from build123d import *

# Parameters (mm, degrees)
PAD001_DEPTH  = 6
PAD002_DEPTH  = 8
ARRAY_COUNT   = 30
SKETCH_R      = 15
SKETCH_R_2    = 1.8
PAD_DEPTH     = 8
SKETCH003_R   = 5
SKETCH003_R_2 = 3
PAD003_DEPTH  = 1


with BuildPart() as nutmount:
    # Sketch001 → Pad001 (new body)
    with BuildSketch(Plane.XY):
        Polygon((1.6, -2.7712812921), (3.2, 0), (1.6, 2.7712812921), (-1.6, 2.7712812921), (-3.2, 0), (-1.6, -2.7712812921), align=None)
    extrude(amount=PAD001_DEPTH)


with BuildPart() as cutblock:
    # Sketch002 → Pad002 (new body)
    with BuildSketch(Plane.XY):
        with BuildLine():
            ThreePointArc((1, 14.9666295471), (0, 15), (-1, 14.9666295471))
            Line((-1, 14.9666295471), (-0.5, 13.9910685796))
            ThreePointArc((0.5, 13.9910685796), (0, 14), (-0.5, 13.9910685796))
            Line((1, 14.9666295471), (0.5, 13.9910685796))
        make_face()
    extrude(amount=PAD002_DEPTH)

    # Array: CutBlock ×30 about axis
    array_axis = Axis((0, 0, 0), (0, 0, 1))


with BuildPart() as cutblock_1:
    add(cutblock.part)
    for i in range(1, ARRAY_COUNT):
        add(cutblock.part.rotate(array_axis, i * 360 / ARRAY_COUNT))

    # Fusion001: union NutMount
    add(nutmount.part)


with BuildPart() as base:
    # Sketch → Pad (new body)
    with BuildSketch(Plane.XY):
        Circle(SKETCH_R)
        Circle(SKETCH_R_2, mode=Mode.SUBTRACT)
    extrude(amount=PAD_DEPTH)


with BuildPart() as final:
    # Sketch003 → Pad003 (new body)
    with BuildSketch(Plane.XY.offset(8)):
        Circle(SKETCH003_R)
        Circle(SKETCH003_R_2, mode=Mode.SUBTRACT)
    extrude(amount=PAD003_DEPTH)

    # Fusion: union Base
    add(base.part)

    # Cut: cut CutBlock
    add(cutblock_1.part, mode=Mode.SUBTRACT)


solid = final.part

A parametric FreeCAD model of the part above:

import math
import FreeCAD as App
import Part
import Sketcher

V = App.Vector
Q = App.Units.Quantity


def add_polygon(sketch, points):
    """Adds a closed chain of lines whose ends are joined by coincident constraints."""
    first, n = sketch.GeometryCount, len(points)
    for a, b in zip(points, points[1:] + points[:1]):
        sketch.addGeometry(Part.LineSegment(App.Vector(*a, 0), App.Vector(*b, 0)), False)
    for i in range(n):
        sketch.addConstraint(Sketcher.Constraint("Coincident", first + i, 2, first + (i + 1) % n, 1))

doc = App.newDocument("Part")
body = doc.addObject("PartDesign::Body", "Body")

# Sketch on XY plane
sketch1 = doc.addObject("Sketcher::SketchObject", "Sketch")
body.addObject(sketch1)
sketch1.AttachmentSupport = (doc.XY_Plane, [""])
sketch1.MapMode = "FlatFace"
add_polygon(sketch1, [(1.6, -2.8), (3.2, 0), (1.6, 2.8), (-1.6, 2.8), (-3.2, 0), (-1.6, -2.8)])  # lines 0-5
sketch1.addConstraint([
    Sketcher.Constraint("Horizontal", 2),
    Sketcher.Constraint("Horizontal", 5),
    Sketcher.Constraint("Symmetric", 0, 2, 3, 2, -1, 1),
    Sketcher.Constraint("Symmetric", 1, 2, 4, 2, -1, 1),
    Sketcher.Constraint("PointOnObject", 0, 2, -1),
    Sketcher.Constraint("Parallel", 0, 3),
    Sketcher.Constraint("Vertical", 2, 2, 4, 2),
    Sketcher.Constraint("Angle", 0, Q("60 deg")),
    Sketcher.Constraint("DistanceX", 2, 2, 2, 1, 3.2),
    Sketcher.Constraint("Distance", 0, 3.2),
])
pad1 = doc.addObject("PartDesign::Pad", "Pad")
body.addObject(pad1)
pad1.Profile = sketch1
pad1.Length = 6
body2 = doc.addObject("PartDesign::Body", "Body001")

# Sketch on XY plane
sketch2 = doc.addObject("Sketcher::SketchObject", "Sketch001")
body2.addObject(sketch2)
sketch2.AttachmentSupport = (doc.getObject("XY_Plane001"), [""])
sketch2.MapMode = "FlatFace"
sketch2.addGeometry([
    Part.ArcOfCircle(Part.Circle(V(0, 0, 0), V(0, 0, 1), 15), math.radians(86.18), math.radians(93.82)),
    Part.LineSegment(V(-1, 15, 0), V(-0.5, 14, 0)),
    Part.ArcOfCircle(Part.Circle(V(0, 0, 0), V(0, 0, 1), 14), math.radians(87.95), math.radians(92.05)),
    Part.LineSegment(V(0.5, 14, 0), V(1, 15, 0)),
], False)
sketch2.addConstraint([
    Sketcher.Constraint("Coincident", 0, 2, 1, 1),
    Sketcher.Constraint("Coincident", 1, 2, 2, 2),
    Sketcher.Constraint("Coincident", 2, 1, 3, 1),
    Sketcher.Constraint("Coincident", 3, 2, 0, 1),
    Sketcher.Constraint("Coincident", 0, 3, -1, 1),
    Sketcher.Constraint("Coincident", 2, 3, -1, 1),
    Sketcher.Constraint("Horizontal", 1, 2, 2, 1),
    Sketcher.Constraint("Horizontal", 0, 2, 3, 2),
    Sketcher.Constraint("Radius", 0, 15.0),
    Sketcher.Constraint("Radius", 2, 14.0),
    Sketcher.Constraint("DistanceX", 0, 2, -1, 1, 1.0),
    Sketcher.Constraint("DistanceX", 1, 2, 2, 1, 1.0),
])
pad2 = doc.addObject("PartDesign::Pad", "Pad001")
body2.addObject(pad2)
pad2.Profile = sketch2
pad2.Length = 8
body3 = doc.addObject("PartDesign::Body", "Body002")
body3.AllowCompound = True
doc.recompute()

body3.BaseFeature = body2
doc.recompute()

body4 = doc.addObject("PartDesign::Body", "Body003")
body4.BaseFeature = body2
body4.Placement = App.Placement(V(0, 0, 0), App.Rotation(V(0, 0, 1), 12))
boolean = doc.addObject("PartDesign::Boolean", "Boolean")
body3.addObject(boolean)
boolean.Type = "Fuse"
boolean.addObjects([body4])
doc.recompute()

body5 = doc.addObject("PartDesign::Body", "Body004")
body5.BaseFeature = body2
body5.Placement = App.Placement(V(0, 0, 0), App.Rotation(V(0, 0, 1), 24))
boolean2 = doc.addObject("PartDesign::Boolean", "Boolean001")
body3.addObject(boolean2)
boolean2.Type = "Fuse"
boolean2.addObjects([body5])
doc.recompute()

body6 = doc.addObject("PartDesign::Body", "Body005")
body6.BaseFeature = body2
body6.Placement = App.Placement(V(0, 0, 0), App.Rotation(V(0, 0, 1), 36))
boolean3 = doc.addObject("PartDesign::Boolean", "Boolean002")
body3.addObject(boolean3)
boolean3.Type = "Fuse"
boolean3.addObjects([body6])
doc.recompute()

body7 = doc.addObject("PartDesign::Body", "Body006")
body7.BaseFeature = body2
body7.Placement = App.Placement(V(0, 0, 0), App.Rotation(V(0, 0, 1), 48))
boolean4 = doc.addObject("PartDesign::Boolean", "Boolean003")
body3.addObject(boolean4)
boolean4.Type = "Fuse"
boolean4.addObjects([body7])
doc.recompute()

body8 = doc.addObject("PartDesign::Body", "Body007")
body8.BaseFeature = body2
body8.Placement = App.Placement(V(0, 0, 0), App.Rotation(V(0, 0, 1), 60))
boolean5 = doc.addObject("PartDesign::Boolean", "Boolean004")
body3.addObject(boolean5)
boolean5.Type = "Fuse"
boolean5.addObjects([body8])
doc.recompute()

body9 = doc.addObject("PartDesign::Body", "Body008")
body9.BaseFeature = body2
body9.Placement = App.Placement(V(0, 0, 0), App.Rotation(V(0, 0, 1), 72))
boolean6 = doc.addObject("PartDesign::Boolean", "Boolean005")
body3.addObject(boolean6)
boolean6.Type = "Fuse"
boolean6.addObjects([body9])
doc.recompute()

body10 = doc.addObject("PartDesign::Body", "Body009")
body10.BaseFeature = body2
body10.Placement = App.Placement(V(0, 0, 0), App.Rotation(V(0, 0, 1), 84))
boolean7 = doc.addObject("PartDesign::Boolean", "Boolean006")
body3.addObject(boolean7)
boolean7.Type = "Fuse"
boolean7.addObjects([body10])
doc.recompute()

body11 = doc.addObject("PartDesign::Body", "Body010")
body11.BaseFeature = body2
body11.Placement = App.Placement(V(0, 0, 0), App.Rotation(V(0, 0, 1), 96))
boolean8 = doc.addObject("PartDesign::Boolean", "Boolean007")
body3.addObject(boolean8)
boolean8.Type = "Fuse"
boolean8.addObjects([body11])
doc.recompute()

body12 = doc.addObject("PartDesign::Body", "Body011")
body12.BaseFeature = body2
body12.Placement = App.Placement(V(0, 0, 0), App.Rotation(V(0, 0, 1), 108))
boolean9 = doc.addObject("PartDesign::Boolean", "Boolean008")
body3.addObject(boolean9)
boolean9.Type = "Fuse"
boolean9.addObjects([body12])
doc.recompute()

body13 = doc.addObject("PartDesign::Body", "Body012")
body13.BaseFeature = body2
body13.Placement = App.Placement(V(0, 0, 0), App.Rotation(V(0, 0, 1), 120))
boolean10 = doc.addObject("PartDesign::Boolean", "Boolean009")
body3.addObject(boolean10)
boolean10.Type = "Fuse"
boolean10.addObjects([body13])
doc.recompute()

body14 = doc.addObject("PartDesign::Body", "Body013")
body14.BaseFeature = body2
body14.Placement = App.Placement(V(0, 0, 0), App.Rotation(V(0, 0, 1), 132))
boolean11 = doc.addObject("PartDesign::Boolean", "Boolean010")
body3.addObject(boolean11)
boolean11.Type = "Fuse"
boolean11.addObjects([body14])
doc.recompute()

body15 = doc.addObject("PartDesign::Body", "Body014")
body15.BaseFeature = body2
body15.Placement = App.Placement(V(0, 0, 0), App.Rotation(V(0, 0, 1), 144))
boolean12 = doc.addObject("PartDesign::Boolean", "Boolean011")
body3.addObject(boolean12)
boolean12.Type = "Fuse"
boolean12.addObjects([body15])
doc.recompute()

body16 = doc.addObject("PartDesign::Body", "Body015")
body16.BaseFeature = body2
body16.Placement = App.Placement(V(0, 0, 0), App.Rotation(V(0, 0, 1), 156))
boolean13 = doc.addObject("PartDesign::Boolean", "Boolean012")
body3.addObject(boolean13)
boolean13.Type = "Fuse"
boolean13.addObjects([body16])
doc.recompute()

body17 = doc.addObject("PartDesign::Body", "Body016")
body17.BaseFeature = body2
body17.Placement = App.Placement(V(0, 0, 0), App.Rotation(V(0, 0, 1), 168))
boolean14 = doc.addObject("PartDesign::Boolean", "Boolean013")
body3.addObject(boolean14)
boolean14.Type = "Fuse"
boolean14.addObjects([body17])
doc.recompute()

body18 = doc.addObject("PartDesign::Body", "Body017")
body18.BaseFeature = body2
body18.Placement = App.Placement(V(0, 0, 0), App.Rotation(V(0, 0, 1), 180))
boolean15 = doc.addObject("PartDesign::Boolean", "Boolean014")
body3.addObject(boolean15)
boolean15.Type = "Fuse"
boolean15.addObjects([body18])
doc.recompute()

body19 = doc.addObject("PartDesign::Body", "Body018")
body19.BaseFeature = body2
body19.Placement = App.Placement(V(0, 0, 0), App.Rotation(V(0, 0, 1), 192))
boolean16 = doc.addObject("PartDesign::Boolean", "Boolean015")
body3.addObject(boolean16)
boolean16.Type = "Fuse"
boolean16.addObjects([body19])
doc.recompute()

body20 = doc.addObject("PartDesign::Body", "Body019")
body20.BaseFeature = body2
body20.Placement = App.Placement(V(0, 0, 0), App.Rotation(V(0, 0, 1), 204))
boolean17 = doc.addObject("PartDesign::Boolean", "Boolean016")
body3.addObject(boolean17)
boolean17.Type = "Fuse"
boolean17.addObjects([body20])
doc.recompute()

body21 = doc.addObject("PartDesign::Body", "Body020")
body21.BaseFeature = body2
body21.Placement = App.Placement(V(0, 0, 0), App.Rotation(V(0, 0, 1), 216))
boolean18 = doc.addObject("PartDesign::Boolean", "Boolean017")
body3.addObject(boolean18)
boolean18.Type = "Fuse"
boolean18.addObjects([body21])
doc.recompute()

body22 = doc.addObject("PartDesign::Body", "Body021")
body22.BaseFeature = body2
body22.Placement = App.Placement(V(0, 0, 0), App.Rotation(V(0, 0, 1), 228))
boolean19 = doc.addObject("PartDesign::Boolean", "Boolean018")
body3.addObject(boolean19)
boolean19.Type = "Fuse"
boolean19.addObjects([body22])
doc.recompute()

body23 = doc.addObject("PartDesign::Body", "Body022")
body23.BaseFeature = body2
body23.Placement = App.Placement(V(0, 0, 0), App.Rotation(V(0, 0, 1), 240))
boolean20 = doc.addObject("PartDesign::Boolean", "Boolean019")
body3.addObject(boolean20)
boolean20.Type = "Fuse"
boolean20.addObjects([body23])
doc.recompute()

body24 = doc.addObject("PartDesign::Body", "Body023")
body24.BaseFeature = body2
body24.Placement = App.Placement(V(0, 0, 0), App.Rotation(V(0, 0, 1), 252))
boolean21 = doc.addObject("PartDesign::Boolean", "Boolean020")
body3.addObject(boolean21)
boolean21.Type = "Fuse"
boolean21.addObjects([body24])
doc.recompute()

body25 = doc.addObject("PartDesign::Body", "Body024")
body25.BaseFeature = body2
body25.Placement = App.Placement(V(0, 0, 0), App.Rotation(V(0, 0, 1), 264))
boolean22 = doc.addObject("PartDesign::Boolean", "Boolean021")
body3.addObject(boolean22)
boolean22.Type = "Fuse"
boolean22.addObjects([body25])
doc.recompute()

body26 = doc.addObject("PartDesign::Body", "Body025")
body26.BaseFeature = body2
body26.Placement = App.Placement(V(0, 0, 0), App.Rotation(V(0, 0, 1), 276))
boolean23 = doc.addObject("PartDesign::Boolean", "Boolean022")
body3.addObject(boolean23)
boolean23.Type = "Fuse"
boolean23.addObjects([body26])
doc.recompute()

body27 = doc.addObject("PartDesign::Body", "Body026")
body27.BaseFeature = body2
body27.Placement = App.Placement(V(0, 0, 0), App.Rotation(V(0, 0, 1), 288))
boolean24 = doc.addObject("PartDesign::Boolean", "Boolean023")
body3.addObject(boolean24)
boolean24.Type = "Fuse"
boolean24.addObjects([body27])
doc.recompute()

body28 = doc.addObject("PartDesign::Body", "Body027")
body28.BaseFeature = body2
body28.Placement = App.Placement(V(0, 0, 0), App.Rotation(V(0, 0, 1), 300))
boolean25 = doc.addObject("PartDesign::Boolean", "Boolean024")
body3.addObject(boolean25)
boolean25.Type = "Fuse"
boolean25.addObjects([body28])
doc.recompute()

body29 = doc.addObject("PartDesign::Body", "Body028")
body29.BaseFeature = body2
body29.Placement = App.Placement(V(0, 0, 0), App.Rotation(V(0, 0, 1), 312))
boolean26 = doc.addObject("PartDesign::Boolean", "Boolean025")
body3.addObject(boolean26)
boolean26.Type = "Fuse"
boolean26.addObjects([body29])
doc.recompute()

body30 = doc.addObject("PartDesign::Body", "Body029")
body30.BaseFeature = body2
body30.Placement = App.Placement(V(0, 0, 0), App.Rotation(V(0, 0, 1), 324))
boolean27 = doc.addObject("PartDesign::Boolean", "Boolean026")
body3.addObject(boolean27)
boolean27.Type = "Fuse"
boolean27.addObjects([body30])
doc.recompute()

body31 = doc.addObject("PartDesign::Body", "Body030")
body31.BaseFeature = body2
body31.Placement = App.Placement(V(0, 0, 0), App.Rotation(V(0, 0, 1), 336))
boolean28 = doc.addObject("PartDesign::Boolean", "Boolean027")
body3.addObject(boolean28)
boolean28.Type = "Fuse"
boolean28.addObjects([body31])
doc.recompute()

body2.Placement = App.Placement(V(0, 0, 0), App.Rotation(V(0, 0, 1), 348))
boolean29 = doc.addObject("PartDesign::Boolean", "Boolean028")
body3.addObject(boolean29)
boolean29.Type = "Fuse"
boolean29.addObjects([body2])
doc.recompute()

boolean30 = doc.addObject("PartDesign::Boolean", "Boolean029")
body3.addObject(boolean30)
boolean30.Type = "Fuse"
boolean30.addObjects([body])
body32 = doc.addObject("PartDesign::Body", "Body031")

# Sketch on XY plane
sketch3 = doc.addObject("Sketcher::SketchObject", "Sketch002")
body32.addObject(sketch3)
sketch3.AttachmentSupport = (doc.getObject("XY_Plane031"), [""])
sketch3.MapMode = "FlatFace"
sketch3.addGeometry([
    Part.Circle(V(0, 0, 0), V(0, 0, 1), 15),
    Part.Circle(V(0, 0, 0), V(0, 0, 1), 1.8),
], False)
sketch3.addConstraint([
    Sketcher.Constraint("Coincident", 0, 3, -1, 1),
    Sketcher.Constraint("Coincident", 1, 3, -1, 1),
    Sketcher.Constraint("Diameter", 0, 30.0),
    Sketcher.Constraint("Diameter", 1, 3.6),
])
pad3 = doc.addObject("PartDesign::Pad", "Pad002")
body32.addObject(pad3)
pad3.Profile = sketch3
pad3.Length = 8
body33 = doc.addObject("PartDesign::Body", "Body032")

# Sketch on XY plane
sketch4 = doc.addObject("Sketcher::SketchObject", "Sketch003")
body33.addObject(sketch4)
sketch4.AttachmentSupport = (doc.getObject("XY_Plane032"), [""])
sketch4.MapMode = "FlatFace"
sketch4.AttachmentOffset = App.Placement(V(0, 0, 8), App.Rotation())
sketch4.addGeometry([
    Part.Circle(V(0, 0, 0), V(0, 0, 1), 5),
    Part.Circle(V(0, 0, 0), V(0, 0, 1), 3),
], False)
sketch4.addConstraint([
    Sketcher.Constraint("Coincident", 0, 3, -1, 1),
    Sketcher.Constraint("Coincident", 1, 3, -1, 1),
    Sketcher.Constraint("Diameter", 0, 10.0),
    Sketcher.Constraint("Diameter", 1, 6.0),
])
pad4 = doc.addObject("PartDesign::Pad", "Pad003")
body33.addObject(pad4)
pad4.Profile = sketch4
pad4.Length = 1
doc.recompute()

boolean31 = doc.addObject("PartDesign::Boolean", "Boolean030")
body33.addObject(boolean31)
boolean31.Type = "Fuse"
boolean31.addObjects([body32])
doc.recompute()

boolean32 = doc.addObject("PartDesign::Boolean", "Boolean031")
body33.addObject(boolean32)
boolean32.Type = "Cut"
boolean32.addObjects([body3])

doc.recompute()
